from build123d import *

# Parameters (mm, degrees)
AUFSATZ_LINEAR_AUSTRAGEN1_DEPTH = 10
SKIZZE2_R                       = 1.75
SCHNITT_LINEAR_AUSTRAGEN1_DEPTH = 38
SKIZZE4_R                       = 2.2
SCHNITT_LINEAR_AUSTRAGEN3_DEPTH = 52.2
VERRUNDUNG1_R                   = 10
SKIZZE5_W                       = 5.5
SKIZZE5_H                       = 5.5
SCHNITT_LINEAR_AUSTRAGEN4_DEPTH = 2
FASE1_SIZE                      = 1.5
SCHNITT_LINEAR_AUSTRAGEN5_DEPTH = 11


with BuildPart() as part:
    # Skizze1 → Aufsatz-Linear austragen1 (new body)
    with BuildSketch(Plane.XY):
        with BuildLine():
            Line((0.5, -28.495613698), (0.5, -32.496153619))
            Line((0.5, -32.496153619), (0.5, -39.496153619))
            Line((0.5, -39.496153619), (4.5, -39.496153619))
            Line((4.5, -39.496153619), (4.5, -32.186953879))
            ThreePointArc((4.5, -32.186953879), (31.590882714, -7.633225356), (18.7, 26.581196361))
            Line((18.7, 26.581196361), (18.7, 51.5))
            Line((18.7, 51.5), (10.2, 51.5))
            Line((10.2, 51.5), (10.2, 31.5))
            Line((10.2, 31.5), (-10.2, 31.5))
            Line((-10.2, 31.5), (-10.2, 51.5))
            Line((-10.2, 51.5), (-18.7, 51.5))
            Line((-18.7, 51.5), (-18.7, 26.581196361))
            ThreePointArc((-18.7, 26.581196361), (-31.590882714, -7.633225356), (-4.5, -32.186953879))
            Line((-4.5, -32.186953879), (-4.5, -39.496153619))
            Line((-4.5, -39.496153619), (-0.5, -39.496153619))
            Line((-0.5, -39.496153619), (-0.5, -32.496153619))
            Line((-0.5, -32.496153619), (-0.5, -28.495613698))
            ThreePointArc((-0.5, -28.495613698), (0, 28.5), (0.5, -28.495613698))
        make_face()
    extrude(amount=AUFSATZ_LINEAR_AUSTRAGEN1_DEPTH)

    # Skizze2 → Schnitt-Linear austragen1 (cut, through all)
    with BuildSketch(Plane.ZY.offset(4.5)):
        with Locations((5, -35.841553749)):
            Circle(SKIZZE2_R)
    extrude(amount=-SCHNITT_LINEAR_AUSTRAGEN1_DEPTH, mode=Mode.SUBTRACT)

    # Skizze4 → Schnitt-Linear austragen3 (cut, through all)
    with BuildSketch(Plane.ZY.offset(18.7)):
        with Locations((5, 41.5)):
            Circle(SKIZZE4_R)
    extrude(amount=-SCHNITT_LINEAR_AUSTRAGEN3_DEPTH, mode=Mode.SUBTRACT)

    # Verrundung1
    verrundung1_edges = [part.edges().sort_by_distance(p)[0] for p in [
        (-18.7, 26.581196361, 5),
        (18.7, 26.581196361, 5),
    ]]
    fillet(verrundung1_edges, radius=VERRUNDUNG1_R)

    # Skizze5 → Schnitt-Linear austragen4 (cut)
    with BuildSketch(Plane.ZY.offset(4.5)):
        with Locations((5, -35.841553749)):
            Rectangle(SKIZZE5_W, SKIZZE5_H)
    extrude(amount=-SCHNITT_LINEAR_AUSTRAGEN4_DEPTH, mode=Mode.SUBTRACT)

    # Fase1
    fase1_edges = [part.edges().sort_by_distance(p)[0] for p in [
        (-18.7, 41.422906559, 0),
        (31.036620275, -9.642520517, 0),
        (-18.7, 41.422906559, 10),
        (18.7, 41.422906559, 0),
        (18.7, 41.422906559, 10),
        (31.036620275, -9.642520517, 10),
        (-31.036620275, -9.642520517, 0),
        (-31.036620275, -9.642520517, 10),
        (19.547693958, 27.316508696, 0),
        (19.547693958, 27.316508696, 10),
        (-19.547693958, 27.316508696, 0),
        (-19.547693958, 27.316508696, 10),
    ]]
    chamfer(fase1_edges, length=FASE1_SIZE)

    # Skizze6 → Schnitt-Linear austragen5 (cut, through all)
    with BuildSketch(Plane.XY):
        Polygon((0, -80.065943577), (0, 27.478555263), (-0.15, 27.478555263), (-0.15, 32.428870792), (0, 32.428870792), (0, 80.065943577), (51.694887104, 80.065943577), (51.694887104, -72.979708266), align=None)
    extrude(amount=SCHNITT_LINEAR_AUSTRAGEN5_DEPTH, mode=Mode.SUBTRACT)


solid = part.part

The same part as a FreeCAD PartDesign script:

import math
import FreeCAD as App
import Part
import Sketcher
Q = App.Units.Quantity


def edges_at(feature, points):
    """Names of the edges that pass closest to the given points."""
    edges = feature.Shape.Edges
    near = lambda p: min(range(len(edges)), key=lambda i: edges[i].distToShape(Part.Vertex(*p))[0])
    return sorted({f"Edge{near(p) + 1}" for p in points})

doc = App.newDocument("Part")
params = doc.addObject("Spreadsheet::Sheet", "Params")
for row, (alias, value) in enumerate([
    ("sketch1_radius", "32.5 mm"),
    ("sketch1_radius2", "28.5 mm"),
    ("sketch1_width", "4 mm"),
    ("sketch1_height", "20 mm"),
    ("sketch1_width2", "8.5 mm"),
    ("pad1_length", "10 mm"),
    ("sketch2_diameter", "3.5 mm"),
    ("sketch3_diameter", "4.4 mm"),
    ("fillet_radius", "10 mm"),
    ("sketch4_width", "5.5 mm"),
    ("pocket3_length", "2 mm"),
    ("chamfer_size", "1.5 mm"),
    ("sketch5_width", "0.15 mm"),
], start=1):
    params.set(f"A{row}", alias)
    params.set(f"B{row}", "=" + value)
    params.setAlias(f"B{row}", alias)

body = doc.addObject("PartDesign::Body", "Body")

# Sketch on XY plane
sketch1 = doc.addObject("Sketcher::SketchObject", "Sketch")
body.addObject(sketch1)
sketch1.AttachmentSupport = (doc.XY_Plane, [""])
sketch1.MapMode = "FlatFace"
sketch1.addGeometry(Part.LineSegment(App.Vector(0.5, -28.5, 0), App.Vector(0.5, -39.5, 0)), False)
sketch1.addGeometry(Part.LineSegment(App.Vector(0.5, -39.5, 0), App.Vector(4.5, -39.5, 0)), False)
sketch1.addGeometry(Part.LineSegment(App.Vector(4.5, -39.5, 0), App.Vector(4.5, -32.2, 0)), False)
sketch1.addGeometry(Part.ArcOfCircle(Part.Circle(App.Vector(0, 0, 0), App.Vector(0, 0, 1), 32.5), math.radians(-82), math.radians(55)), False)
sketch1.addGeometry(Part.LineSegment(App.Vector(18.7, 26.6, 0), App.Vector(18.7, 51.5, 0)), False)
sketch1.addGeometry(Part.LineSegment(App.Vector(18.7, 51.5, 0), App.Vector(10.2, 51.5, 0)), False)
sketch1.addGeometry(Part.LineSegment(App.Vector(10.2, 51.5, 0), App.Vector(10.2, 31.5, 0)), False)
sketch1.addGeometry(Part.LineSegment(App.Vector(10.2, 31.5, 0), App.Vector(-10.2, 31.5, 0)), False)
sketch1.addGeometry(Part.LineSegment(App.Vector(-10.2, 31.5, 0), App.Vector(-10.2, 51.5, 0)), False)
sketch1.addGeometry(Part.LineSegment(App.Vector(-10.2, 51.5, 0), App.Vector(-18.7, 51.5, 0)), False)
sketch1.addGeometry(Part.LineSegment(App.Vector(-18.7, 51.5, 0), App.Vector(-18.7, 26.6, 0)), False)
sketch1.addGeometry(Part.ArcOfCircle(Part.Circle(App.Vector(0, 0, 0), App.Vector(0, 0, 1), 32.5), math.radians(125), math.radians(262)), False)
sketch1.addGeometry(Part.LineSegment(App.Vector(-4.5, -32.2, 0), App.Vector(-4.5, -39.5, 0)), False)
sketch1.addGeometry(Part.LineSegment(App.Vector(-4.5, -39.5, 0), App.Vector(-0.5, -39.5, 0)), False)
sketch1.addGeometry(Part.LineSegment(App.Vector(-0.5, -39.5, 0), App.Vector(-0.5, -28.5, 0)), False)
sketch1.addGeometry(Part.ArcOfCircle(Part.Circle(App.Vector(0, 0, 0), App.Vector(0, 0, 1), 28.5), math.radians(-89), math.radians(269)), False)
sketch1.addConstraint(Sketcher.Constraint("Coincident", 0, 2, 1, 1))
sketch1.addConstraint(Sketcher.Constraint("Coincident", 1, 2, 2, 1))
sketch1.addConstraint(Sketcher.Constraint("Coincident", 2, 2, 3, 1))
sketch1.addConstraint(Sketcher.Constraint("Coincident", 3, 2, 4, 1))
sketch1.addConstraint(Sketcher.Constraint("Coincident", 4, 2, 5, 1))
sketch1.addConstraint(Sketcher.Constraint("Coincident", 5, 2, 6, 1))
sketch1.addConstraint(Sketcher.Constraint("Coincident", 6, 2, 7, 1))
sketch1.addConstraint(Sketcher.Constraint("Coincident", 7, 2, 8, 1))
sketch1.addConstraint(Sketcher.Constraint("Coincident", 8, 2, 9, 1))
sketch1.addConstraint(Sketcher.Constraint("Coincident", 9, 2, 10, 1))
sketch1.addConstraint(Sketcher.Constraint("Coincident", 10, 2, 11, 1))
sketch1.addConstraint(Sketcher.Constraint("Coincident", 11, 2, 12, 1))
sketch1.addConstraint(Sketcher.Constraint("Coincident", 12, 2, 13, 1))
sketch1.addConstraint(Sketcher.Constraint("Coincident", 13, 2, 14, 1))
sketch1.addConstraint(Sketcher.Constraint("Coincident", 14, 2, 15, 2))
sketch1.addConstraint(Sketcher.Constraint("Coincident", 15, 1, 0, 1))
sketch1.addConstraint(Sketcher.Constraint("Vertical", 0))
sketch1.addConstraint(Sketcher.Constraint("Horizontal", 1))
sketch1.addConstraint(Sketcher.Constraint("Vertical", 2))
sketch1.addConstraint(Sketcher.Constraint("Vertical", 4))
sketch1.addConstraint(Sketcher.Constraint("Horizontal", 5))
sketch1.addConstraint(Sketcher.Constraint("Vertical", 6))
sketch1.addConstraint(Sketcher.Constraint("Horizontal", 7))
sketch1.addConstraint(Sketcher.Constraint("Vertical", 8))
sketch1.addConstraint(Sketcher.Constraint("Horizontal", 9))
sketch1.addConstraint(Sketcher.Constraint("Vertical", 10))
sketch1.addConstraint(Sketcher.Constraint("Vertical", 12))
sketch1.addConstraint(Sketcher.Constraint("Horizontal", 13))
sketch1.addConstraint(Sketcher.Constraint("Vertical", 14))
sketch1.addConstraint(Sketcher.Constraint("Coincident", 3, 3, -1, 1))
sketch1.addConstraint(Sketcher.Constraint("Coincident", 11, 3, -1, 1))
sketch1.addConstraint(Sketcher.Constraint("Coincident", 15, 3, -1, 1))
sketch1.addConstraint(Sketcher.Constraint("Equal", 3, 11))
sketch1.addConstraint(Sketcher.Constraint("Symmetric", 5, 2, 8, 2, -2))
sketch1.addConstraint(Sketcher.Constraint("Symmetric", 1, 2, 12, 2, -2))
sketch1.addConstraint(Sketcher.Constraint("Horizontal", 3, 2, 10, 2))
sketch1.addConstraint(Sketcher.Constraint("Horizontal", 14, 2, 15, 1))
sketch1.addConstraint(Sketcher.Constraint("Radius", 3, Q("32.5 mm")))
sketch1.addConstraint(Sketcher.Constraint("Radius", 15, Q("28.5 mm")))
sketch1.addConstraint(Sketcher.Constraint("DistanceX", 1, 1, 1, 2, Q("4 mm")))
sketch1.addConstraint(Sketcher.Constraint("DistanceY", 6, 2, 6, 1, Q("20 mm")))
sketch1.addConstraint(Sketcher.Constraint("DistanceX", 5, 2, 5, 1, Q("8.5 mm")))
sketch1.addConstraint(Sketcher.Constraint("DistanceX", 7, 2, 7, 1, Q("20.4 mm")))
sketch1.addConstraint(Sketcher.Constraint("DistanceX", 11, 2, 0, 2, Q("5 mm")))
sketch1.addConstraint(Sketcher.Constraint("DistanceY", -1, 1, 4, 2, Q("51.5 mm")))
sketch1.addConstraint(Sketcher.Constraint("DistanceY", 2, 1, 2, 2, Q("7.3092 mm")))
sketch1.setExpression("Constraints[37]", "Params.sketch1_radius")
sketch1.setExpression("Constraints[38]", "Params.sketch1_radius2")
sketch1.setExpression("Constraints[39]", "Params.sketch1_width")
sketch1.setExpression("Constraints[40]", "Params.sketch1_height")
sketch1.setExpression("Constraints[41]", "Params.sketch1_width2")
pad1 = doc.addObject("PartDesign::Pad", "Pad")
body.addObject(pad1)
pad1.Profile = sketch1
pad1.setExpression("Length", "Params.pad1_length")

# Sketch on YZ plane
sketch2 = doc.addObject("Sketcher::SketchObject", "Sketch001")
body.addObject(sketch2)
sketch2.AttachmentSupport = (doc.YZ_Plane, [""])
sketch2.MapMode = "FlatFace"
sketch2.AttachmentOffset = App.Placement(App.Vector(0, 0, -4.5), App.Rotation())
sketch2.addGeometry(Part.Circle(App.Vector(-35.8, 5, 0), App.Vector(0, 0, 1), 1.8), False)
sketch2.addConstraint(Sketcher.Constraint("Diameter", 0, Q("3.5 mm")))
sketch2.addConstraint(Sketcher.Constraint("DistanceY", -1, 1, 0, 3, Q("5 mm")))
sketch2.addConstraint(Sketcher.Constraint("DistanceX", 0, 3, -1, 1, Q("35.841554 mm")))
sketch2.setExpression("Constraints[0]", "Params.sketch2_diameter")
pocket1 = doc.addObject("PartDesign::Pocket", "Pocket")
body.addObject(pocket1)
pocket1.Profile = sketch2
pocket1.Type = "ThroughAll"
pocket1.Reversed = True

# Sketch on YZ plane
sketch3 = doc.addObject("Sketcher::SketchObject", "Sketch002")
body.addObject(sketch3)
sketch3.AttachmentSupport = (doc.YZ_Plane, [""])
sketch3.MapMode = "FlatFace"
sketch3.AttachmentOffset = App.Placement(App.Vector(0, 0, -18.7), App.Rotation())
sketch3.addGeometry(Part.Circle(App.Vector(41.5, 5, 0), App.Vector(0, 0, 1), 2.2), False)
sketch3.addConstraint(Sketcher.Constraint("Diameter", 0, Q("4.4 mm")))
sketch3.addConstraint(Sketcher.Constraint("DistanceY", -1, 1, 0, 3, Q("5 mm")))
sketch3.addConstraint(Sketcher.Constraint("DistanceX", -1, 1, 0, 3, Q("41.5 mm")))
sketch3.setExpression("Constraints[0]", "Params.sketch3_diameter")
pocket2 = doc.addObject("PartDesign::Pocket", "Pocket001")
body.addObject(pocket2)
pocket2.Profile = sketch3
pocket2.Type = "ThroughAll"
pocket2.Reversed = True
doc.recompute()

fillet = doc.addObject("PartDesign::Fillet", "Fillet")
body.addObject(fillet)
fillet.Base = (pocket2, edges_at(pocket2, [(-18.7, 26.581, 5), (18.7, 26.581, 5)]))
fillet.setExpression("Radius", "Params.fillet_radius")

# Sketch on YZ plane
sketch4 = doc.addObject("Sketcher::SketchObject", "Sketch003")
body.addObject(sketch4)
sketch4.AttachmentSupport = (doc.YZ_Plane, [""])
sketch4.MapMode = "FlatFace"
sketch4.AttachmentOffset = App.Placement(App.Vector(0, 0, -4.5), App.Rotation())
sketch4.addGeometry(Part.LineSegment(App.Vector(-33, 2, 0), App.Vector(-39, 2, 0)), False)
sketch4.addGeometry(Part.LineSegment(App.Vector(-39, 2, 0), App.Vector(-39, 8, 0)), False)
sketch4.addGeometry(Part.LineSegment(App.Vector(-39, 8, 0), App.Vector(-33, 8, 0)), False)
sketch4.addGeometry(Part.LineSegment(App.Vector(-33, 8, 0), App.Vector(-33, 2, 0)), False)
sketch4.addConstraint(Sketcher.Constraint("Coincident", 0, 2, 1, 1))
sketch4.addConstraint(Sketcher.Constraint("Coincident", 1, 2, 2, 1))
sketch4.addConstraint(Sketcher.Constraint("Coincident", 2, 2, 3, 1))
sketch4.addConstraint(Sketcher.Constraint("Coincident", 3, 2, 0, 1))
sketch4.addConstraint(Sketcher.Constraint("Horizontal", 0))
sketch4.addConstraint(Sketcher.Constraint("Vertical", 1))
sketch4.addConstraint(Sketcher.Constraint("Horizontal", 2))
sketch4.addConstraint(Sketcher.Constraint("Vertical", 3))
sketch4.addConstraint(Sketcher.Constraint("Equal", 2, 1))
sketch4.addConstraint(Sketcher.Constraint("DistanceX", 0, 2, 0, 1, Q("5.5 mm")))
sketch4.addConstraint(Sketcher.Constraint("DistanceY", -1, 1, 0, 2, Q("2.25 mm")))
sketch4.addConstraint(Sketcher.Constraint("DistanceX", 0, 2, -1, 1, Q("38.591554 mm")))
sketch4.setExpression("Constraints[9]", "Params.sketch4_width")
pocket3 = doc.addObject("PartDesign::Pocket", "Pocket002")
body.addObject(pocket3)
pocket3.Profile = sketch4
pocket3.setExpression("Length", "Params.pocket3_length")
pocket3.Reversed = True
doc.recompute()

chamfer = doc.addObject("PartDesign::Chamfer", "Chamfer")
body.addObject(chamfer)
chamfer.Base = (pocket3, edges_at(pocket3, [
    (-18.7, 41.423, 0),
    (31.037, -9.643, 0),
    (-18.7, 41.423, 10),
    (18.7, 41.423, 0),
    (18.7, 41.423, 10),
    (31.037, -9.643, 10),
    (-31.037, -9.643, 0),
    (-31.037, -9.643, 10),
    (19.548, 27.317, 0),
    (19.548, 27.317, 10),
    (-19.548, 27.317, 0),
    (-19.548, 27.317, 10),
]))
chamfer.setExpression("Size", "Params.chamfer_size")

# Sketch on XY plane
sketch5 = doc.addObject("Sketcher::SketchObject", "Sketch004")
body.addObject(sketch5)
sketch5.AttachmentSupport = (doc.XY_Plane, [""])
sketch5.MapMode = "FlatFace"
sketch5.addGeometry(Part.LineSegment(App.Vector(0, 27.48, 0), App.Vector(0, -80.07, 0)), False)
sketch5.addGeometry(Part.LineSegment(App.Vector(0, -80.07, 0), App.Vector(51.69, -72.98, 0)), False)
sketch5.addGeometry(Part.LineSegment(App.Vector(51.69, -72.98, 0), App.Vector(51.69, 80.07, 0)), False)
sketch5.addGeometry(Part.LineSegment(App.Vector(51.69, 80.07, 0), App.Vector(0, 80.07, 0)), False)
sketch5.addGeometry(Part.LineSegment(App.Vector(0, 80.07, 0), App.Vector(0, 32.43, 0)), False)
sketch5.addGeometry(Part.LineSegment(App.Vector(0, 32.43, 0), App.Vector(-0.15, 32.43, 0)), False)
sketch5.addGeometry(Part.LineSegment(App.Vector(-0.15, 32.43, 0), App.Vector(-0.15, 27.48, 0)), False)
sketch5.addGeometry(Part.LineSegment(App.Vector(-0.15, 27.48, 0), App.Vector(0, 27.48, 0)), False)
sketch5.addConstraint(Sketcher.Constraint("Coincident", 0, 2, 1, 1))
sketch5.addConstraint(Sketcher.Constraint("Coincident", 1, 2, 2, 1))
sketch5.addConstraint(Sketcher.Constraint("Coincident", 2, 2, 3, 1))
sketch5.addConstraint(Sketcher.Constraint("Coincident", 3, 2, 4, 1))
sketch5.addConstraint(Sketcher.Constraint("Coincident", 4, 2, 5, 1))
sketch5.addConstraint(Sketcher.Constraint("Coincident", 5, 2, 6, 1))
sketch5.addConstraint(Sketcher.Constraint("Coincident", 6, 2, 7, 1))
sketch5.addConstraint(Sketcher.Constraint("Coincident", 7, 2, 0, 1))
sketch5.addConstraint(Sketcher.Constraint("Vertical", 0))
sketch5.addConstraint(Sketcher.Constraint("Vertical", 2))
sketch5.addConstraint(Sketcher.Constraint("Horizontal", 3))
sketch5.addConstraint(Sketcher.Constraint("Vertical", 4))
sketch5.addConstraint(Sketcher.Constraint("Horizontal", 5))
sketch5.addConstraint(Sketcher.Constraint("Vertical", 6))
sketch5.addConstraint(Sketcher.Constraint("Horizontal", 7))
sketch5.addConstraint(Sketcher.Constraint("Symmetric", 0, 2, 3, 2, -1, 1))
sketch5.addConstraint(Sketcher.Constraint("PointOnObject", 0, 2, -2))
sketch5.addConstraint(Sketcher.Constraint("DistanceX", 5, 2, 5, 1, Q("0.15 mm")))
sketch5.addConstraint(Sketcher.Constraint("DistanceY", 0, 2, 0, 1, Q("107.544499 mm")))
sketch5.addConstraint(Sketcher.Constraint("DistanceY", 2, 1, 2, 2, Q("153.045652 mm")))
sketch5.addConstraint(Sketcher.Constraint("Distance", 1, Q("52.17831 mm")))
sketch5.addConstraint(Sketcher.Constraint("DistanceX", 3, 2, 3, 1, Q("51.694887 mm")))
sketch5.addConstraint(Sketcher.Constraint("DistanceY", 4, 2, 4, 1, Q("47.637073 mm")))
sketch5.setExpression("Constraints[17]", "Params.sketch5_width")
pocket4 = doc.addObject("PartDesign::Pocket", "Pocket003")
body.addObject(pocket4)
pocket4.Profile = sketch5
pocket4.Type = "ThroughAll"
pocket4.Reversed = True

doc.recompute()
